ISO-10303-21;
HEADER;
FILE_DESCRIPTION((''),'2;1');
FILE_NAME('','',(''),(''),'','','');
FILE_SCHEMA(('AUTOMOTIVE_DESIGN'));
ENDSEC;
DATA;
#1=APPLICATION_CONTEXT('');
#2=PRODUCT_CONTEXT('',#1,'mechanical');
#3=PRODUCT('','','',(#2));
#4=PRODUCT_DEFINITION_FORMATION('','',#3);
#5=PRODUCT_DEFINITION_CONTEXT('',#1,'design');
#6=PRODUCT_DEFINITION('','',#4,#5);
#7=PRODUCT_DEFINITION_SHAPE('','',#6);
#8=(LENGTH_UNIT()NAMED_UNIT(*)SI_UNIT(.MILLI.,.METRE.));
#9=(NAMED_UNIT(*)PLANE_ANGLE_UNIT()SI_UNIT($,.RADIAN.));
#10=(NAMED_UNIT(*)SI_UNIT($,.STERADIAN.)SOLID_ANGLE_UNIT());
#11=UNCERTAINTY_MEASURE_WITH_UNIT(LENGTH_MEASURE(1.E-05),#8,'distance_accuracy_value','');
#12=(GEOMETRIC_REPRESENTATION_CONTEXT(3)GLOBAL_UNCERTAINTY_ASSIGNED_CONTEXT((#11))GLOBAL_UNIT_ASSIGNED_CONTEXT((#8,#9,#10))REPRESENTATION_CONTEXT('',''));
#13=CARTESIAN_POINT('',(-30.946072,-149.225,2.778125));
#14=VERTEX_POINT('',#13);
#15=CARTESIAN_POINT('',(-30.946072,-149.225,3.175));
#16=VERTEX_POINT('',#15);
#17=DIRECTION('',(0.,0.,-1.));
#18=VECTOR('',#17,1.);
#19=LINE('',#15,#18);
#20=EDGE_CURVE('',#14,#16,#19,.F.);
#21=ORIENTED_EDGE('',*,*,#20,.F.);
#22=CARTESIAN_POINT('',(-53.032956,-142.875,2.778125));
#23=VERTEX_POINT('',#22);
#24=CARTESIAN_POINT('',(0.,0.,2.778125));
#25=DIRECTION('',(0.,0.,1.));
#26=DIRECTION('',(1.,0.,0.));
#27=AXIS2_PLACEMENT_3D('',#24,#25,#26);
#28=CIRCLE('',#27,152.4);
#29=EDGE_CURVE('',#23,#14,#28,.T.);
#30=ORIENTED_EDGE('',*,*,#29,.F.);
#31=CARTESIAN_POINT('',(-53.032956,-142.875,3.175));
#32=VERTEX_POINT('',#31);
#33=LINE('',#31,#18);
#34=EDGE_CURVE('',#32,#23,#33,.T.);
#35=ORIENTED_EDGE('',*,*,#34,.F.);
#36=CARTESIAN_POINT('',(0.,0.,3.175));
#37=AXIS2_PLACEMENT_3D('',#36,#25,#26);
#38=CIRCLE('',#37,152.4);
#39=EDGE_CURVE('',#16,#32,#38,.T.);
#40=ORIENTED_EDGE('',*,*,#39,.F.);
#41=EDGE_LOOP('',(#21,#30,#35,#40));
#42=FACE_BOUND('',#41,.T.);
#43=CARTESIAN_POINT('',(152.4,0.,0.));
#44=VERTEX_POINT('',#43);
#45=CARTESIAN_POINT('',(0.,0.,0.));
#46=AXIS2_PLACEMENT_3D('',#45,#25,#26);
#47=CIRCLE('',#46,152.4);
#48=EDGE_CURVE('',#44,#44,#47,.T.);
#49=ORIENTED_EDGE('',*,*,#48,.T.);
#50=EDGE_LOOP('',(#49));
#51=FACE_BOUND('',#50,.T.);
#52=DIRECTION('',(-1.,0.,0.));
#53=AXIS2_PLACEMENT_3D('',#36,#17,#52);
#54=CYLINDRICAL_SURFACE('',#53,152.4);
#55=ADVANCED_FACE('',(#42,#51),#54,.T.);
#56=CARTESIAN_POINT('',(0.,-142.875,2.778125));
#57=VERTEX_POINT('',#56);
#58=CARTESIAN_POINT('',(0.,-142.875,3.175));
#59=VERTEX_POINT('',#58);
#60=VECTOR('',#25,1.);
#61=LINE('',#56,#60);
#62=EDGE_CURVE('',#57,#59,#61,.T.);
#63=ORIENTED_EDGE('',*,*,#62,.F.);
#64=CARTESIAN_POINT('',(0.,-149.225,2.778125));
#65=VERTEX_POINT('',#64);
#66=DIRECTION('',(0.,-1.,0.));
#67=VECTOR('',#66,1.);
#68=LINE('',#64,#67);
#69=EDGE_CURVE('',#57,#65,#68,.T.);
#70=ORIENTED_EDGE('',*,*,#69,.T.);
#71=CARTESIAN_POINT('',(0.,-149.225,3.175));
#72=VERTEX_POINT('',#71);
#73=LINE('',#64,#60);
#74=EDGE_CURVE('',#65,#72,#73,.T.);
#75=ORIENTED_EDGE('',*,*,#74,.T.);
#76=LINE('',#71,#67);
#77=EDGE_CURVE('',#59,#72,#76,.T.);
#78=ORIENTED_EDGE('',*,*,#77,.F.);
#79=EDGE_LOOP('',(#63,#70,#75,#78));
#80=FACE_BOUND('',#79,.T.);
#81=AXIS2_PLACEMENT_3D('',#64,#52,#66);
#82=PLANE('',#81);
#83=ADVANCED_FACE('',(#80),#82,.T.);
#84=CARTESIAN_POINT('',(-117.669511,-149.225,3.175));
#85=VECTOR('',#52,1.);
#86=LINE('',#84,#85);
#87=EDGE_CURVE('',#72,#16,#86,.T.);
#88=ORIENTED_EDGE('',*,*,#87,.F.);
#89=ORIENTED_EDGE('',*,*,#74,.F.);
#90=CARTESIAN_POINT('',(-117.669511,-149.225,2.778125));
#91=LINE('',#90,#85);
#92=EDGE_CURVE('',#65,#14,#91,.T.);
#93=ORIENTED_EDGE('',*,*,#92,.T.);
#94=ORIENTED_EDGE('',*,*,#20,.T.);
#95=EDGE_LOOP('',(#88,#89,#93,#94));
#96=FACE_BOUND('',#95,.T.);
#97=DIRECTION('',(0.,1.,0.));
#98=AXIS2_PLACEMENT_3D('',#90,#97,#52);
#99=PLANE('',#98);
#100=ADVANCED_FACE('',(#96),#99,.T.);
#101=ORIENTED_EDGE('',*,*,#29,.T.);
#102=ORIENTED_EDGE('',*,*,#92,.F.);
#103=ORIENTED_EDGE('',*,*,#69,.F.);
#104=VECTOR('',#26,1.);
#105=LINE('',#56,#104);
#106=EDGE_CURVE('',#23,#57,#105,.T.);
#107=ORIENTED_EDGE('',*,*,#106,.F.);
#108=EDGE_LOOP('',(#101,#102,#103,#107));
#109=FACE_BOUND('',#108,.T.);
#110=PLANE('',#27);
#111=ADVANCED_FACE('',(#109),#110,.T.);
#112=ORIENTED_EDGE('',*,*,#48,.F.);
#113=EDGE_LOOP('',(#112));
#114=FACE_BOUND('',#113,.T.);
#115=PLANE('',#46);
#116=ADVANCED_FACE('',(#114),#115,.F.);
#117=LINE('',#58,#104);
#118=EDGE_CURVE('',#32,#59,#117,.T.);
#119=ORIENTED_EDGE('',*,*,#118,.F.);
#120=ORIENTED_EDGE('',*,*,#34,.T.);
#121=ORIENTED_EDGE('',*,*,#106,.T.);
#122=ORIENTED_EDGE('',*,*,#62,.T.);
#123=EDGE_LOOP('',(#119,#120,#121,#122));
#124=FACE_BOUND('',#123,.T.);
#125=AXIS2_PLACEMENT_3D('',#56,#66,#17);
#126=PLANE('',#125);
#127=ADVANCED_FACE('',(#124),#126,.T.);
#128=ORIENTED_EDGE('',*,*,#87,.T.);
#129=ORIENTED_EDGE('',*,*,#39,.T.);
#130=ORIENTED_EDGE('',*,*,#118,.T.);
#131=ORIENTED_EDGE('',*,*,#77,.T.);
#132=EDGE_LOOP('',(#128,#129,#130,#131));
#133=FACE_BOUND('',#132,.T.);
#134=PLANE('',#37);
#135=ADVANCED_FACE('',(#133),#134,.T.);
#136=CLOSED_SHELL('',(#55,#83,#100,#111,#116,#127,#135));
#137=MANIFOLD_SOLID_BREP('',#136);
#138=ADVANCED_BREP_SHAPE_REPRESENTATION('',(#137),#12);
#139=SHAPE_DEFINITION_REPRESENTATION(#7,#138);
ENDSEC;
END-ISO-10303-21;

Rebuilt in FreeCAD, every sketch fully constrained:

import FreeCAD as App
import Part
import Sketcher
from FreeCAD import Vector
Q = App.Units.Quantity


def add_polygon(sketch, points):
    """Adds a closed chain of lines whose ends are joined by coincident constraints."""
    first, n = sketch.GeometryCount, len(points)
    for a, b in zip(points, points[1:] + points[:1]):
        sketch.addGeometry(Part.LineSegment(App.Vector(*a, 0), App.Vector(*b, 0)), False)
    for i in range(n):
        sketch.addConstraint(Sketcher.Constraint("Coincident", first + i, 2, first + (i + 1) % n, 1))

doc = App.newDocument("Part")
body = doc.addObject("PartDesign::Body", "Body")

sketch1 = body.newObject("Sketcher::SketchObject", "Sketch")
sketch1.AttachmentSupport = (doc.getObject("XY_Plane"), [""])
sketch1.MapMode = "FlatFace"
sketch1.addGeometry(Part.Circle(Vector(0, 0, 0), Vector(0, 0, 1), 152), False)
sketch1.addConstraint(Sketcher.Constraint("Coincident", 0, 3, -1, 1))
sketch1.addConstraint(Sketcher.Constraint("Diameter", 0, Q("12 in")))
pad1 = body.newObject("PartDesign::Pad", "Pad")
pad1.Profile = sketch1
pad1.Length = Q("0.125 in")

sketch2 = body.newObject("Sketcher::SketchObject", "Sketch001")
sketch2.AttachmentSupport = (doc.getObject("XY_Plane"), [""])
sketch2.MapMode = "FlatFace"
sketch2.AttachmentOffset = App.Placement(Vector(0, 0, 0.125 * 25.4), App.Rotation())
add_polygon(sketch2, [(0, -143), (0, -149), (-118, -149), (-118, -143)])
sketch2.addConstraint(Sketcher.Constraint("Vertical", 0))
sketch2.addConstraint(Sketcher.Constraint("Horizontal", 1))
sketch2.addConstraint(Sketcher.Constraint("Vertical", 2))
sketch2.addConstraint(Sketcher.Constraint("Horizontal", 3))
sketch2.addConstraint(Sketcher.Constraint("PointOnObject", 0, 2, -2))
sketch2.addConstraint(Sketcher.Constraint("DistanceY", 0, 2, 0, 1, Q("0.25 in")))
sketch2.addConstraint(Sketcher.Constraint("DistanceY", 0, 2, -1, 1, Q("5.875 in")))
sketch2.addConstraint(Sketcher.Constraint("DistanceX", 1, 2, 1, 1, 117.669511))
pocket1 = body.newObject("PartDesign::Pocket", "Pocket")
pocket1.Profile = sketch2
pocket1.Length = Q("0.015625 in")

doc.recompute()
